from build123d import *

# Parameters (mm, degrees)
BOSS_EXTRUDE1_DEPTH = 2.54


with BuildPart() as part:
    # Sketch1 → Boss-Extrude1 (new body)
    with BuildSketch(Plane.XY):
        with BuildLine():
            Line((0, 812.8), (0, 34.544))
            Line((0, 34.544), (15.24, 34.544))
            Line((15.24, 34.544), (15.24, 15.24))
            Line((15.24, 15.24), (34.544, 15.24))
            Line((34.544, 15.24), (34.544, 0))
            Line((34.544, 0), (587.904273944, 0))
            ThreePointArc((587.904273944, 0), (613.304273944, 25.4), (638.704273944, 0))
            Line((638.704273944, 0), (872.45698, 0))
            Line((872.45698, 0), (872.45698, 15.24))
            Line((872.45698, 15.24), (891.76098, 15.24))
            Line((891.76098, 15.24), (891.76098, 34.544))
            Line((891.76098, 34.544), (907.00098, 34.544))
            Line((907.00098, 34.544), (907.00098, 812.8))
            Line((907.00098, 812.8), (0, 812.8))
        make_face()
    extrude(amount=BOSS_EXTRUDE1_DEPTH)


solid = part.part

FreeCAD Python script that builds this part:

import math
import FreeCAD as App
import Part
import Sketcher
Q = App.Units.Quantity

doc = App.newDocument("Part")
body = doc.addObject("PartDesign::Body", "Body")

sketch1 = body.newObject("Sketcher::SketchObject", "Sketch")
sketch1.AttachmentSupport = (doc.getObject("XY_Plane"), [""])
sketch1.MapMode = "FlatFace"
sketch1.addGeometry(Part.LineSegment(App.Vector(0, 813, 0), App.Vector(0, 35, 0)), False)
sketch1.addGeometry(Part.LineSegment(App.Vector(0, 35, 0), App.Vector(15, 35, 0)), False)
sketch1.addGeometry(Part.LineSegment(App.Vector(15, 35, 0), App.Vector(15, 15, 0)), False)
sketch1.addGeometry(Part.LineSegment(App.Vector(15, 15, 0), App.Vector(35, 15, 0)), False)
sketch1.addGeometry(Part.LineSegment(App.Vector(35, 15, 0), App.Vector(35, 0, 0)), False)
sketch1.addGeometry(Part.LineSegment(App.Vector(35, 0, 0), App.Vector(588, 0, 0)), False)
sketch1.addGeometry(Part.ArcOfCircle(Part.Circle(App.Vector(613, 0, 0), App.Vector(0, 0, 1), 25), math.radians(0), math.radians(180)), False)
sketch1.addGeometry(Part.LineSegment(App.Vector(639, 0, 0), App.Vector(872, 0, 0)), False)
sketch1.addGeometry(Part.LineSegment(App.Vector(872, 0, 0), App.Vector(872, 15, 0)), False)
sketch1.addGeometry(Part.LineSegment(App.Vector(872, 15, 0), App.Vector(892, 15, 0)), False)
sketch1.addGeometry(Part.LineSegment(App.Vector(892, 15, 0), App.Vector(892, 35, 0)), False)
sketch1.addGeometry(Part.LineSegment(App.Vector(892, 35, 0), App.Vector(907, 35, 0)), False)
sketch1.addGeometry(Part.LineSegment(App.Vector(907, 35, 0), App.Vector(907, 813, 0)), False)
sketch1.addGeometry(Part.LineSegment(App.Vector(907, 813, 0), App.Vector(0, 813, 0)), False)
sketch1.addConstraint(Sketcher.Constraint("Coincident", 0, 2, 1, 1))
sketch1.addConstraint(Sketcher.Constraint("Coincident", 1, 2, 2, 1))
sketch1.addConstraint(Sketcher.Constraint("Coincident", 2, 2, 3, 1))
sketch1.addConstraint(Sketcher.Constraint("Coincident", 3, 2, 4, 1))
sketch1.addConstraint(Sketcher.Constraint("Coincident", 4, 2, 5, 1))
sketch1.addConstraint(Sketcher.Constraint("Coincident", 5, 2, 6, 2))
sketch1.addConstraint(Sketcher.Constraint("Coincident", 6, 1, 7, 1))
sketch1.addConstraint(Sketcher.Constraint("Coincident", 7, 2, 8, 1))
sketch1.addConstraint(Sketcher.Constraint("Coincident", 8, 2, 9, 1))
sketch1.addConstraint(Sketcher.Constraint("Coincident", 9, 2, 10, 1))
sketch1.addConstraint(Sketcher.Constraint("Coincident", 10, 2, 11, 1))
sketch1.addConstraint(Sketcher.Constraint("Coincident", 11, 2, 12, 1))
sketch1.addConstraint(Sketcher.Constraint("Coincident", 12, 2, 13, 1))
sketch1.addConstraint(Sketcher.Constraint("Coincident", 13, 2, 0, 1))
sketch1.addConstraint(Sketcher.Constraint("Vertical", 0))
sketch1.addConstraint(Sketcher.Constraint("Horizontal", 1))
sketch1.addConstraint(Sketcher.Constraint("Vertical", 2))
sketch1.addConstraint(Sketcher.Constraint("Horizontal", 3))
sketch1.addConstraint(Sketcher.Constraint("Vertical", 4))
sketch1.addConstraint(Sketcher.Constraint("Horizontal", 5))
sketch1.addConstraint(Sketcher.Constraint("Horizontal", 7))
sketch1.addConstraint(Sketcher.Constraint("Vertical", 8))
sketch1.addConstraint(Sketcher.Constraint("Horizontal", 9))
sketch1.addConstraint(Sketcher.Constraint("Vertical", 10))
sketch1.addConstraint(Sketcher.Constraint("Horizontal", 11))
sketch1.addConstraint(Sketcher.Constraint("Vertical", 12))
sketch1.addConstraint(Sketcher.Constraint("Horizontal", 13))
sketch1.addConstraint(Sketcher.Constraint("PointOnObject", 6, 3, -1))
sketch1.addConstraint(Sketcher.Constraint("PointOnObject", 0, 2, -2))
sketch1.addConstraint(Sketcher.Constraint("PointOnObject", 4, 2, -1))
sketch1.addConstraint(Sketcher.Constraint("PointOnObject", 6, 1, -1))
sketch1.addConstraint(Sketcher.Constraint("Horizontal", 3, 2, 8, 2))
sketch1.addConstraint(Sketcher.Constraint("Horizontal", 1, 2, 10, 2))
sketch1.addConstraint(Sketcher.Constraint("Equal", 3, 9))
sketch1.addConstraint(Sketcher.Constraint("Equal", 1, 11))
sketch1.addConstraint(Sketcher.Constraint("Equal", 9, 2))
sketch1.addConstraint(Sketcher.Constraint("Equal", 11, 4))
sketch1.addConstraint(Sketcher.Constraint("Radius", 6, Q("1 in")))
sketch1.addConstraint(Sketcher.Constraint("DistanceX", 1, 1, 1, 2, Q("0.6 in")))
sketch1.addConstraint(Sketcher.Constraint("DistanceY", -1, 1, 12, 2, Q("32 in")))
sketch1.addConstraint(Sketcher.Constraint("DistanceX", 3, 1, 3, 2, Q("0.76 in")))
sketch1.addConstraint(Sketcher.Constraint("DistanceX", 13, 2, 13, 1, Q("35.7087 in")))
sketch1.addConstraint(Sketcher.Constraint("DistanceX", 5, 1, 5, 2, 553.360274))
pad1 = body.newObject("PartDesign::Pad", "Pad")
pad1.Profile = sketch1
pad1.Length = Q("0.1 in")

doc.recompute()
